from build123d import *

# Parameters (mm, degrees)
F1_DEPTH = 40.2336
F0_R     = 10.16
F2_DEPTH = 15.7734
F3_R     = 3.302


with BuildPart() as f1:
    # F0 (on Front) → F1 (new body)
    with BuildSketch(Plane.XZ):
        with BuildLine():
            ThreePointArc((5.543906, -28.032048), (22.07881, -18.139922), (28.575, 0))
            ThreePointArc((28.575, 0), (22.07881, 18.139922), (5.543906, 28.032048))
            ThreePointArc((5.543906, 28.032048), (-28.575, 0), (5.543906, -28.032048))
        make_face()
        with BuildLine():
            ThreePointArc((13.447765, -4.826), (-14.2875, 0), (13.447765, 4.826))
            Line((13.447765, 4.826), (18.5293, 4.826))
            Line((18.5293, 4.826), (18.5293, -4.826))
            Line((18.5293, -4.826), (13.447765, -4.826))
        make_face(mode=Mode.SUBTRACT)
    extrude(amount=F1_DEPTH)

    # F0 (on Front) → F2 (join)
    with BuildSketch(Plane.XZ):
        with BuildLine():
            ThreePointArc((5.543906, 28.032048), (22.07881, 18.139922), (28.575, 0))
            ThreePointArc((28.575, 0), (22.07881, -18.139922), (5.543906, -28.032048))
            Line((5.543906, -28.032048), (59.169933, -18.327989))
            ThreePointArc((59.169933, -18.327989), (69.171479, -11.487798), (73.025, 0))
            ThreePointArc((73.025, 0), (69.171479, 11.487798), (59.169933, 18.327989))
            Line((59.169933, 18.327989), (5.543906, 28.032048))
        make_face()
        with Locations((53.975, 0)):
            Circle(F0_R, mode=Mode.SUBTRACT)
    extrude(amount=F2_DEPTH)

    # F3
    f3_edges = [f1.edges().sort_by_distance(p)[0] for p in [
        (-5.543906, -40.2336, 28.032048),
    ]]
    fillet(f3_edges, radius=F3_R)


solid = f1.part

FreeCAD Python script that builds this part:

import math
import FreeCAD as App
import Part
import Sketcher

V = App.Vector
Q = App.Units.Quantity


def edges_at(feature, points):
    """Names of the edges that pass closest to the given points."""
    edges = feature.Shape.Edges
    near = lambda p: min(range(len(edges)), key=lambda i: edges[i].distToShape(Part.Vertex(*p))[0])
    return sorted({f"Edge{near(p) + 1}" for p in points})

doc = App.newDocument("Part")
body = doc.addObject("PartDesign::Body", "Body")

# Sketch on XZ plane
sketch1 = body.newObject("Sketcher::SketchObject", "Sketch")
sketch1.AttachmentSupport = (doc.getObject("XZ_Plane"), [""])
sketch1.MapMode = "FlatFace"
sketch1.addGeometry(Part.ArcOfCircle(Part.Circle(V(0, 0, 0), V(0, 0, 1), 29), math.radians(-79), math.radians(0)), False)
sketch1.addGeometry(Part.ArcOfCircle(Part.Circle(V(0, 0, 0), V(0, 0, 1), 29), math.radians(0), math.radians(79)), False)
sketch1.addGeometry(Part.ArcOfCircle(Part.Circle(V(0, 0, 0), V(0, 0, 1), 29), math.radians(79), math.radians(281)), False)
sketch1.addGeometry(Part.LineSegment(V(19, -5, 0), V(13, -5, 0)), False)
sketch1.addGeometry(Part.ArcOfCircle(Part.Circle(V(0, 0, 0), V(0, 0, 1), 14), math.radians(20), math.radians(340)), False)
sketch1.addGeometry(Part.LineSegment(V(13, 5, 0), V(19, 5, 0)), False)
sketch1.addGeometry(Part.LineSegment(V(19, 5, 0), V(19, -5, 0)), False)
sketch1.addConstraint(Sketcher.Constraint("Tangent", 0, 2, 1, 1))
sketch1.addConstraint(Sketcher.Constraint("Tangent", 1, 2, 2, 1))
sketch1.addConstraint(Sketcher.Constraint("Tangent", 2, 2, 0, 1))
sketch1.addConstraint(Sketcher.Constraint("Coincident", 3, 2, 4, 2))
sketch1.addConstraint(Sketcher.Constraint("Coincident", 4, 1, 5, 1))
sketch1.addConstraint(Sketcher.Constraint("Coincident", 5, 2, 6, 1))
sketch1.addConstraint(Sketcher.Constraint("Coincident", 6, 2, 3, 1))
sketch1.addConstraint(Sketcher.Constraint("Horizontal", 3))
sketch1.addConstraint(Sketcher.Constraint("Horizontal", 5))
sketch1.addConstraint(Sketcher.Constraint("Vertical", 6))
sketch1.addConstraint(Sketcher.Constraint("Coincident", 0, 3, -1, 1))
sketch1.addConstraint(Sketcher.Constraint("Coincident", 4, 3, -1, 1))
sketch1.addConstraint(Sketcher.Constraint("PointOnObject", 0, 2, -1))
sketch1.addConstraint(Sketcher.Constraint("Vertical", 1, 2, 2, 2))
sketch1.addConstraint(Sketcher.Constraint("Vertical", 3, 2, 4, 1))
sketch1.addConstraint(Sketcher.Constraint("Radius", 0, Q("1.125 in")))
sketch1.addConstraint(Sketcher.Constraint("Radius", 4, Q("0.5625 in")))
sketch1.addConstraint(Sketcher.Constraint("DistanceY", 6, 2, 6, 1, Q("0.38 in")))
sketch1.addConstraint(Sketcher.Constraint("DistanceX", -1, 1, 5, 2, Q("0.7295 in")))
sketch1.addConstraint(Sketcher.Constraint("DistanceY", -1, 1, 1, 2, 28.032048))
pad1 = body.newObject("PartDesign::Pad", "Pad")
pad1.Profile = sketch1
pad1.Length = Q("1.584 in")

# Sketch on XZ plane
sketch2 = body.newObject("Sketcher::SketchObject", "Sketch001")
sketch2.AttachmentSupport = (doc.getObject("XZ_Plane"), [""])
sketch2.MapMode = "FlatFace"
sketch2.addGeometry(Part.ArcOfCircle(Part.Circle(V(0, 0, 0), V(0, 0, 1), 29), math.radians(0), math.radians(79)), False)
sketch2.addGeometry(Part.ArcOfCircle(Part.Circle(V(0, 0, 0), V(0, 0, 1), 29), math.radians(-79), math.radians(0)), False)
sketch2.addGeometry(Part.LineSegment(V(6, -28, 0), V(59, -18, 0)), False)
sketch2.addGeometry(Part.ArcOfCircle(Part.Circle(V(54, 0, 0), V(0, 0, 1), 19), math.radians(-74), math.radians(0)), False)
sketch2.addGeometry(Part.ArcOfCircle(Part.Circle(V(54, 0, 0), V(0, 0, 1), 19), math.radians(0), math.radians(74)), False)
sketch2.addGeometry(Part.LineSegment(V(59, 18, 0), V(6, 28, 0)), False)
sketch2.addGeometry(Part.Circle(V(54, 0, 0), V(0, 0, 1), 10), False)
sketch2.addConstraint(Sketcher.Constraint("Tangent", 0, 1, 1, 2))
sketch2.addConstraint(Sketcher.Constraint("Coincident", 1, 1, 2, 1))
sketch2.addConstraint(Sketcher.Constraint("Coincident", 2, 2, 3, 1))
sketch2.addConstraint(Sketcher.Constraint("Tangent", 3, 2, 4, 1))
sketch2.addConstraint(Sketcher.Constraint("Coincident", 4, 2, 5, 1))
sketch2.addConstraint(Sketcher.Constraint("Coincident", 5, 2, 0, 2))
sketch2.addConstraint(Sketcher.Constraint("Coincident", 0, 3, -1, 1))
sketch2.addConstraint(Sketcher.Constraint("Coincident", 6, 3, 3, 3))
sketch2.addConstraint(Sketcher.Constraint("Equal", 0, 1))
sketch2.addConstraint(Sketcher.Constraint("Equal", 3, 4))
sketch2.addConstraint(Sketcher.Constraint("Symmetric", 2, 2, 4, 2, -1))
sketch2.addConstraint(Sketcher.Constraint("PointOnObject", 0, 1, -1))
sketch2.addConstraint(Sketcher.Constraint("PointOnObject", 3, 2, -1))
sketch2.addConstraint(Sketcher.Constraint("Vertical", 1, 1, 5, 2))
sketch2.addConstraint(Sketcher.Constraint("Diameter", 6, Q("0.8 in")))
sketch2.addConstraint(Sketcher.Constraint("Radius", 3, Q("0.7500001 in")))
sketch2.addConstraint(Sketcher.Constraint("Radius", 0, Q("1.125 in")))
sketch2.addConstraint(Sketcher.Constraint("DistanceX", 0, 1, 3, 3, Q("0.9999999 in")))
sketch2.addConstraint(Sketcher.Constraint("Distance", 2, 54.496968))
sketch2.addConstraint(Sketcher.Constraint("DistanceY", 1, 1, -1, 1, 28.032048))
pad2 = body.newObject("PartDesign::Pad", "Pad001")
pad2.Profile = sketch2
pad2.Length = Q("0.621 in")
doc.recompute()

fillet = body.newObject("PartDesign::Fillet", "Fillet")
fillet.Base = (pad2, edges_at(pad2, [(-28.575, -40.234, 0)]))
fillet.Radius = Q("0.13 in")

doc.recompute()
